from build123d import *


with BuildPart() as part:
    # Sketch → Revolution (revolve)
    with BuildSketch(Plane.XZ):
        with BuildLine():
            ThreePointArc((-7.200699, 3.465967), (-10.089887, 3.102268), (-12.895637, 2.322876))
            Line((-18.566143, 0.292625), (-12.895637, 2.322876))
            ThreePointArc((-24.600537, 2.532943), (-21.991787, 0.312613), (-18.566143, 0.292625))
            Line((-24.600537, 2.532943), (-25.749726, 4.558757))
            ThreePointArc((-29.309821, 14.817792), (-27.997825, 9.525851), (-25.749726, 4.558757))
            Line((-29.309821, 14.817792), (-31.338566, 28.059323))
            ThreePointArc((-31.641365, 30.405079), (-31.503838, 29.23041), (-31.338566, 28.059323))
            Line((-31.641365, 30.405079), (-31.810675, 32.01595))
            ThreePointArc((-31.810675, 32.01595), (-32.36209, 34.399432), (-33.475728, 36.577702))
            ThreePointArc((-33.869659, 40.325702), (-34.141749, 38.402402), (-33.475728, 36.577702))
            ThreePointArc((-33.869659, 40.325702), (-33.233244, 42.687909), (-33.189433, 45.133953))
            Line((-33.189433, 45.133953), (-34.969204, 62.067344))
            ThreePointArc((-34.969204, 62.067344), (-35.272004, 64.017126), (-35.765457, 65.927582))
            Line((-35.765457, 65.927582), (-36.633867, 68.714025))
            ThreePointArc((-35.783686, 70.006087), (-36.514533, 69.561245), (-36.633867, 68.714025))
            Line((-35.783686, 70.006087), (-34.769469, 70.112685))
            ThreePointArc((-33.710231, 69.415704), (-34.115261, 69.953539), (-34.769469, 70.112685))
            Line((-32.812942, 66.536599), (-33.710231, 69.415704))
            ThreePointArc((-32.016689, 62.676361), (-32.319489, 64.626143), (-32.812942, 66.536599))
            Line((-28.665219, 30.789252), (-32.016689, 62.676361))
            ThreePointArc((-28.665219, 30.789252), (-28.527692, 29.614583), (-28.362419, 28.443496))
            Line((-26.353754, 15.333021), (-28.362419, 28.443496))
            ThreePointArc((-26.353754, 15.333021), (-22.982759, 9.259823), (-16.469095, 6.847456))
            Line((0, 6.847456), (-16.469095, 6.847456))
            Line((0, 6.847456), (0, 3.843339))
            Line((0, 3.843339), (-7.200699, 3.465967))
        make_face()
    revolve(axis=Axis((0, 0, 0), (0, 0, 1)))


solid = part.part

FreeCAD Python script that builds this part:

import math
import FreeCAD as App
import Part
import Sketcher

doc = App.newDocument("Part")
body = doc.addObject("PartDesign::Body", "Body")

# Sketch on XZ plane
sketch1 = body.newObject("Sketcher::SketchObject", "Sketch")
sketch1.AttachmentSupport = (doc.getObject("XZ_Plane"), [""])
sketch1.MapMode = "FlatFace"
sketch1.addGeometry(Part.ArcOfCircle(Part.Circle(App.Vector(-6.153979, -16.506627, 0), App.Vector(0, 0, 1), 20.000003), math.radians(93.000001), math.radians(109.699244)), False)
sketch1.addGeometry(Part.LineSegment(App.Vector(-7.200699, 3.465967, 0), App.Vector(0, 3.843339, 0)), False)
sketch1.addGeometry(Part.LineSegment(App.Vector(0, 3.843339, 0), App.Vector(0, 6.847456, 0)), False)
sketch1.addGeometry(Part.LineSegment(App.Vector(0, 6.847456, 0), App.Vector(-16.469095, 6.847456, 0)), False)
sketch1.addGeometry(Part.ArcOfCircle(Part.Circle(App.Vector(-16.469094, 16.847457, 0), App.Vector(0, 0, 1), 10.000001), math.radians(-171.289408), math.radians(-90.000005)), False)
sketch1.addGeometry(Part.LineSegment(App.Vector(-26.353754, 15.333021, 0), App.Vector(-28.362419, 28.443496, 0)), False)
sketch1.addGeometry(Part.ArcOfCircle(Part.Circle(App.Vector(21.059007, 36.015442, 0), App.Vector(0, 0, 1), 49.998117), math.radians(-174.000042), math.radians(-171.289346)), False)
sketch1.addGeometry(Part.LineSegment(App.Vector(-28.665219, 30.789252, 0), App.Vector(-32.016689, 62.676361, 0)), False)
sketch1.addGeometry(Part.ArcOfCircle(Part.Circle(App.Vector(-51.907152, 60.585787, 0), App.Vector(0, 0, 1), 20.000026), math.radians(6.000006), math.radians(17.309922)), False)
sketch1.addGeometry(Part.LineSegment(App.Vector(-32.812942, 66.536599, 0), App.Vector(-33.710231, 69.415704, 0)), False)
sketch1.addGeometry(Part.ArcOfCircle(Part.Circle(App.Vector(-34.66494, 69.118163, 0), App.Vector(0, 0, 1), 1), math.radians(17.309968), math.radians(96.000018)), False)
sketch1.addGeometry(Part.LineSegment(App.Vector(-34.769469, 70.112685, 0), App.Vector(-35.783686, 70.006087, 0)), False)
sketch1.addGeometry(Part.ArcOfCircle(Part.Circle(App.Vector(-35.679158, 69.011565, 0), App.Vector(0, 0, 1), 1), math.radians(95.999996), math.radians(197.309911)), False)
sketch1.addGeometry(Part.LineSegment(App.Vector(-36.633867, 68.714025, 0), App.Vector(-35.765457, 65.927582, 0)), False)
sketch1.addGeometry(Part.ArcOfCircle(Part.Circle(App.Vector(-54.859667, 59.97677, 0), App.Vector(0, 0, 1), 20.000026), math.radians(6.000006), math.radians(17.309922)), False)
sketch1.addGeometry(Part.LineSegment(App.Vector(-34.969204, 62.067344, 0), App.Vector(-33.189433, 45.133953, 0)), False)
sketch1.addGeometry(Part.ArcOfCircle(Part.Circle(App.Vector(-43.13465, 44.088667, 0), App.Vector(0, 0, 1), 9.999998), math.radians(-22.104471), math.radians(6.000008)), False)
sketch1.addGeometry(Part.ArcOfCircle(Part.Circle(App.Vector(-30.16366, 38.820517, 0), App.Vector(0, 0, 1), 4.000001), math.radians(157.895549), math.radians(214.104461)), False)
sketch1.addGeometry(Part.ArcOfCircle(Part.Circle(App.Vector(-41.755911, 30.97066, 0), App.Vector(0, 0, 1), 10.000017), math.radians(6.00002), math.radians(34.104444)), False)
sketch1.addGeometry(Part.LineSegment(App.Vector(-31.810675, 32.01595, 0), App.Vector(-31.641365, 30.405079, 0)), False)
sketch1.addGeometry(Part.ArcOfCircle(Part.Circle(App.Vector(18.084616, 35.631474, 0), App.Vector(0, 0, 1), 49.999884), math.radians(-174.000018), math.radians(-171.289418)), False)
sketch1.addGeometry(Part.LineSegment(App.Vector(-31.338566, 28.059323, 0), App.Vector(-29.309821, 14.817792, 0)), False)
sketch1.addGeometry(Part.ArcOfCircle(Part.Circle(App.Vector(0.344164, 19.361101, 0), App.Vector(0, 0, 1), 30.000008), math.radians(-171.289406), math.radians(-150.434954)), False)
sketch1.addGeometry(Part.LineSegment(App.Vector(-25.749726, 4.558757, 0), App.Vector(-24.600537, 2.532943, 0)), False)
sketch1.addGeometry(Part.ArcOfCircle(Part.Circle(App.Vector(-20.251557, 5, 0), App.Vector(0, 0, 1), 5), math.radians(-150.434946), math.radians(-70.300763)), False)
sketch1.addGeometry(Part.LineSegment(App.Vector(-18.566143, 0.292625, 0), App.Vector(-12.895637, 2.322876, 0)), False)
sketch1.addConstraint(Sketcher.Constraint("Coincident", 0, 1, 1, 1))
sketch1.addConstraint(Sketcher.Constraint("Coincident", 1, 2, 2, 1))
sketch1.addConstraint(Sketcher.Constraint("Coincident", 2, 2, 3, 1))
sketch1.addConstraint(Sketcher.Constraint("Coincident", 3, 2, 4, 2))
sketch1.addConstraint(Sketcher.Constraint("Coincident", 4, 1, 5, 1))
sketch1.addConstraint(Sketcher.Constraint("Coincident", 5, 2, 6, 2))
sketch1.addConstraint(Sketcher.Constraint("Coincident", 6, 1, 7, 1))
sketch1.addConstraint(Sketcher.Constraint("Coincident", 7, 2, 8, 1))
sketch1.addConstraint(Sketcher.Constraint("Coincident", 8, 2, 9, 1))
sketch1.addConstraint(Sketcher.Constraint("Coincident", 9, 2, 10, 1))
sketch1.addConstraint(Sketcher.Constraint("Coincident", 10, 2, 11, 1))
sketch1.addConstraint(Sketcher.Constraint("Coincident", 11, 2, 12, 1))
sketch1.addConstraint(Sketcher.Constraint("Coincident", 12, 2, 13, 1))
sketch1.addConstraint(Sketcher.Constraint("Coincident", 13, 2, 14, 2))
sketch1.addConstraint(Sketcher.Constraint("Coincident", 14, 1, 15, 1))
sketch1.addConstraint(Sketcher.Constraint("Coincident", 15, 2, 16, 2))
sketch1.addConstraint(Sketcher.Constraint("Coincident", 16, 1, 17, 1))
sketch1.addConstraint(Sketcher.Constraint("Coincident", 17, 2, 18, 2))
sketch1.addConstraint(Sketcher.Constraint("Coincident", 18, 1, 19, 1))
sketch1.addConstraint(Sketcher.Constraint("Coincident", 19, 2, 20, 1))
sketch1.addConstraint(Sketcher.Constraint("Coincident", 20, 2, 21, 1))
sketch1.addConstraint(Sketcher.Constraint("Coincident", 21, 2, 22, 1))
sketch1.addConstraint(Sketcher.Constraint("Coincident", 22, 2, 23, 1))
sketch1.addConstraint(Sketcher.Constraint("Coincident", 23, 2, 24, 1))
sketch1.addConstraint(Sketcher.Constraint("Coincident", 24, 2, 25, 1))
sketch1.addConstraint(Sketcher.Constraint("Coincident", 25, 2, 0, 2))
sketch1.addConstraint(Sketcher.Constraint("Vertical", 2))
sketch1.addConstraint(Sketcher.Constraint("Horizontal", 3))
sketch1.addConstraint(Sketcher.Constraint("PointOnObject", 1, 2, -2))
sketch1.addConstraint(Sketcher.Constraint("Radius", 4, 10.000001))
sketch1.addConstraint(Sketcher.Constraint("Radius", 10, 1.0))
sketch1.addConstraint(Sketcher.Constraint("Radius", 12, 1.0))
sketch1.addConstraint(Sketcher.Constraint("Radius", 16, 9.999998))
sketch1.addConstraint(Sketcher.Constraint("Radius", 17, 4.000001))
sketch1.addConstraint(Sketcher.Constraint("Radius", 24, 5.0))
sketch1.addConstraint(Sketcher.Constraint("DistanceY", -1, 1, 24, 3, 5.0))
sketch1.addConstraint(Sketcher.Constraint("Radius", 22, 30.000008))
sketch1.addConstraint(Sketcher.Constraint("Radius", 0, 20.000003))
sketch1.addConstraint(Sketcher.Constraint("Radius", 6, 49.998117))
sketch1.addConstraint(Sketcher.Constraint("Radius", 8, 20.000026))
sketch1.addConstraint(Sketcher.Constraint("Radius", 14, 20.000026))
sketch1.addConstraint(Sketcher.Constraint("Radius", 18, 10.000017))
sketch1.addConstraint(Sketcher.Constraint("Radius", 20, 49.999884))
sketch1.addConstraint(Sketcher.Constraint("DistanceX", 10, 3, 8, 2, 1.851998))
sketch1.addConstraint(Sketcher.Constraint("DistanceX", 16, 1, 17, 3, 3.705999))
sketch1.addConstraint(Sketcher.Constraint("DistanceY", 17, 2, 16, 1, 3.748))
sketch1.addConstraint(Sketcher.Constraint("DistanceY", -1, 1, 22, 3, 19.361101))
sketch1.addConstraint(Sketcher.Constraint("DistanceX", 0, 1, -1, 1, 7.200699))
sketch1.addConstraint(Sketcher.Constraint("DistanceY", -1, 1, 8, 2, 66.536599))
sketch1.addConstraint(Sketcher.Constraint("DistanceY", -1, 1, 16, 1, 40.325702))
sketch1.addConstraint(Sketcher.Constraint("DistanceX", 4, 3, 6, 3, 37.528101))
sketch1.addConstraint(Sketcher.Constraint("DistanceY", 0, 3, 20, 3, 52.138101))
sketch1.addConstraint(Sketcher.Constraint("DistanceX", 6, 1, 5, 2, 0.3028))
sketch1.addConstraint(Sketcher.Constraint("DistanceY", 7, 2, 10, 3, 6.441802))
sketch1.addConstraint(Sketcher.Constraint("DistanceX", 12, 2, 10, 2, 1.864398))
sketch1.addConstraint(Sketcher.Constraint("DistanceX", 13, 2, 12, 3, 0.086299))
sketch1.addConstraint(Sketcher.Constraint("DistanceY", 6, 1, 15, 2, 14.344701))
sketch1.addConstraint(Sketcher.Constraint("DistanceY", 6, 1, 18, 1, 1.226698))
sketch1.addConstraint(Sketcher.Constraint("DistanceX", 19, 2, 20, 2, 0.302799))
sketch1.addConstraint(Sketcher.Constraint("DistanceY", 22, 2, 3, 2, 2.288699))
sketch1.addConstraint(Sketcher.Constraint("DistanceX", 23, 2, 25, 2, 11.7049))
sketch1.addConstraint(Sketcher.Constraint("Distance", 1, 7.210581))
sketch1.addConstraint(Sketcher.Constraint("Distance", 13, 2.91863))
sketch1.addConstraint(Sketcher.Constraint("DistanceX", 3, 2, 3, 1, 16.469095))
sketch1.addConstraint(Sketcher.Constraint("DistanceY", 2, 1, 2, 2, 3.004117))
sketch1.addConstraint(Sketcher.Constraint("DistanceX", 0, 3, -1, 1, 6.153979))
sketch1.addConstraint(Sketcher.Constraint("DistanceY", -1, 1, 6, 3, 36.015442))
sketch1.addConstraint(Sketcher.Constraint("DistanceX", 10, 3, -1, 1, 34.66494))
sketch1.addConstraint(Sketcher.Constraint("DistanceY", -1, 1, 14, 3, 59.97677))
sketch1.addConstraint(Sketcher.Constraint("DistanceX", 16, 3, -1, 1, 43.13465))
sketch1.addConstraint(Sketcher.Constraint("DistanceX", 17, 3, -1, 1, 30.16366))
sketch1.addConstraint(Sketcher.Constraint("DistanceX", 18, 3, -1, 1, 41.755911))
sketch1.addConstraint(Sketcher.Constraint("DistanceY", -1, 1, 1, 2, 3.843339))
sketch1.addConstraint(Sketcher.Constraint("DistanceY", -1, 1, 4, 1, 15.333021))
sketch1.addConstraint(Sketcher.Constraint("DistanceX", 5, 2, -1, 1, 28.362419))
sketch1.addConstraint(Sketcher.Constraint("DistanceX", 7, 2, -1, 1, 32.016689))
sketch1.addConstraint(Sketcher.Constraint("DistanceY", -1, 1, 7, 2, 62.676361))
sketch1.addConstraint(Sketcher.Constraint("DistanceX", 9, 2, -1, 1, 33.710231))
sketch1.addConstraint(Sketcher.Constraint("DistanceX", 10, 2, -1, 1, 34.769469))
sketch1.addConstraint(Sketcher.Constraint("DistanceY", -1, 1, 13, 2, 65.927582))
sketch1.addConstraint(Sketcher.Constraint("DistanceY", -1, 1, 18, 1, 32.01595))
sketch1.addConstraint(Sketcher.Constraint("DistanceY", -1, 1, 19, 2, 30.405079))
sketch1.addConstraint(Sketcher.Constraint("DistanceX", 21, 2, -1, 1, 29.309821))
sketch1.addConstraint(Sketcher.Constraint("DistanceY", 8, 3, 12, 3, 8.425778))
sketch1.addConstraint(Sketcher.Constraint("DistanceX", 20, 3, 6, 3, 2.974391))
sketch1.addConstraint(Sketcher.Constraint("DistanceX", 4, 3, 22, 3, 16.813258))
sketch1.addConstraint(Sketcher.Constraint("DistanceX", 24, 3, 22, 3, 20.595721))
sketch1.addConstraint(Sketcher.Constraint("DistanceX", 11, 2, 12, 3, 0.104528))
sketch1.addConstraint(Sketcher.Constraint("DistanceX", 14, 1, 8, 2, 2.156262))
sketch1.addConstraint(Sketcher.Constraint("DistanceX", 22, 2, 23, 2, 1.149189))
sketch1.addConstraint(Sketcher.Constraint("DistanceY", 24, 2, 23, 2, 2.240318))
revolution = body.newObject("PartDesign::Revolution", "Revolution")
revolution.Profile = sketch1
revolution.ReferenceAxis = (sketch1, ["V_Axis"])
revolution.Angle = 360

doc.recompute()
